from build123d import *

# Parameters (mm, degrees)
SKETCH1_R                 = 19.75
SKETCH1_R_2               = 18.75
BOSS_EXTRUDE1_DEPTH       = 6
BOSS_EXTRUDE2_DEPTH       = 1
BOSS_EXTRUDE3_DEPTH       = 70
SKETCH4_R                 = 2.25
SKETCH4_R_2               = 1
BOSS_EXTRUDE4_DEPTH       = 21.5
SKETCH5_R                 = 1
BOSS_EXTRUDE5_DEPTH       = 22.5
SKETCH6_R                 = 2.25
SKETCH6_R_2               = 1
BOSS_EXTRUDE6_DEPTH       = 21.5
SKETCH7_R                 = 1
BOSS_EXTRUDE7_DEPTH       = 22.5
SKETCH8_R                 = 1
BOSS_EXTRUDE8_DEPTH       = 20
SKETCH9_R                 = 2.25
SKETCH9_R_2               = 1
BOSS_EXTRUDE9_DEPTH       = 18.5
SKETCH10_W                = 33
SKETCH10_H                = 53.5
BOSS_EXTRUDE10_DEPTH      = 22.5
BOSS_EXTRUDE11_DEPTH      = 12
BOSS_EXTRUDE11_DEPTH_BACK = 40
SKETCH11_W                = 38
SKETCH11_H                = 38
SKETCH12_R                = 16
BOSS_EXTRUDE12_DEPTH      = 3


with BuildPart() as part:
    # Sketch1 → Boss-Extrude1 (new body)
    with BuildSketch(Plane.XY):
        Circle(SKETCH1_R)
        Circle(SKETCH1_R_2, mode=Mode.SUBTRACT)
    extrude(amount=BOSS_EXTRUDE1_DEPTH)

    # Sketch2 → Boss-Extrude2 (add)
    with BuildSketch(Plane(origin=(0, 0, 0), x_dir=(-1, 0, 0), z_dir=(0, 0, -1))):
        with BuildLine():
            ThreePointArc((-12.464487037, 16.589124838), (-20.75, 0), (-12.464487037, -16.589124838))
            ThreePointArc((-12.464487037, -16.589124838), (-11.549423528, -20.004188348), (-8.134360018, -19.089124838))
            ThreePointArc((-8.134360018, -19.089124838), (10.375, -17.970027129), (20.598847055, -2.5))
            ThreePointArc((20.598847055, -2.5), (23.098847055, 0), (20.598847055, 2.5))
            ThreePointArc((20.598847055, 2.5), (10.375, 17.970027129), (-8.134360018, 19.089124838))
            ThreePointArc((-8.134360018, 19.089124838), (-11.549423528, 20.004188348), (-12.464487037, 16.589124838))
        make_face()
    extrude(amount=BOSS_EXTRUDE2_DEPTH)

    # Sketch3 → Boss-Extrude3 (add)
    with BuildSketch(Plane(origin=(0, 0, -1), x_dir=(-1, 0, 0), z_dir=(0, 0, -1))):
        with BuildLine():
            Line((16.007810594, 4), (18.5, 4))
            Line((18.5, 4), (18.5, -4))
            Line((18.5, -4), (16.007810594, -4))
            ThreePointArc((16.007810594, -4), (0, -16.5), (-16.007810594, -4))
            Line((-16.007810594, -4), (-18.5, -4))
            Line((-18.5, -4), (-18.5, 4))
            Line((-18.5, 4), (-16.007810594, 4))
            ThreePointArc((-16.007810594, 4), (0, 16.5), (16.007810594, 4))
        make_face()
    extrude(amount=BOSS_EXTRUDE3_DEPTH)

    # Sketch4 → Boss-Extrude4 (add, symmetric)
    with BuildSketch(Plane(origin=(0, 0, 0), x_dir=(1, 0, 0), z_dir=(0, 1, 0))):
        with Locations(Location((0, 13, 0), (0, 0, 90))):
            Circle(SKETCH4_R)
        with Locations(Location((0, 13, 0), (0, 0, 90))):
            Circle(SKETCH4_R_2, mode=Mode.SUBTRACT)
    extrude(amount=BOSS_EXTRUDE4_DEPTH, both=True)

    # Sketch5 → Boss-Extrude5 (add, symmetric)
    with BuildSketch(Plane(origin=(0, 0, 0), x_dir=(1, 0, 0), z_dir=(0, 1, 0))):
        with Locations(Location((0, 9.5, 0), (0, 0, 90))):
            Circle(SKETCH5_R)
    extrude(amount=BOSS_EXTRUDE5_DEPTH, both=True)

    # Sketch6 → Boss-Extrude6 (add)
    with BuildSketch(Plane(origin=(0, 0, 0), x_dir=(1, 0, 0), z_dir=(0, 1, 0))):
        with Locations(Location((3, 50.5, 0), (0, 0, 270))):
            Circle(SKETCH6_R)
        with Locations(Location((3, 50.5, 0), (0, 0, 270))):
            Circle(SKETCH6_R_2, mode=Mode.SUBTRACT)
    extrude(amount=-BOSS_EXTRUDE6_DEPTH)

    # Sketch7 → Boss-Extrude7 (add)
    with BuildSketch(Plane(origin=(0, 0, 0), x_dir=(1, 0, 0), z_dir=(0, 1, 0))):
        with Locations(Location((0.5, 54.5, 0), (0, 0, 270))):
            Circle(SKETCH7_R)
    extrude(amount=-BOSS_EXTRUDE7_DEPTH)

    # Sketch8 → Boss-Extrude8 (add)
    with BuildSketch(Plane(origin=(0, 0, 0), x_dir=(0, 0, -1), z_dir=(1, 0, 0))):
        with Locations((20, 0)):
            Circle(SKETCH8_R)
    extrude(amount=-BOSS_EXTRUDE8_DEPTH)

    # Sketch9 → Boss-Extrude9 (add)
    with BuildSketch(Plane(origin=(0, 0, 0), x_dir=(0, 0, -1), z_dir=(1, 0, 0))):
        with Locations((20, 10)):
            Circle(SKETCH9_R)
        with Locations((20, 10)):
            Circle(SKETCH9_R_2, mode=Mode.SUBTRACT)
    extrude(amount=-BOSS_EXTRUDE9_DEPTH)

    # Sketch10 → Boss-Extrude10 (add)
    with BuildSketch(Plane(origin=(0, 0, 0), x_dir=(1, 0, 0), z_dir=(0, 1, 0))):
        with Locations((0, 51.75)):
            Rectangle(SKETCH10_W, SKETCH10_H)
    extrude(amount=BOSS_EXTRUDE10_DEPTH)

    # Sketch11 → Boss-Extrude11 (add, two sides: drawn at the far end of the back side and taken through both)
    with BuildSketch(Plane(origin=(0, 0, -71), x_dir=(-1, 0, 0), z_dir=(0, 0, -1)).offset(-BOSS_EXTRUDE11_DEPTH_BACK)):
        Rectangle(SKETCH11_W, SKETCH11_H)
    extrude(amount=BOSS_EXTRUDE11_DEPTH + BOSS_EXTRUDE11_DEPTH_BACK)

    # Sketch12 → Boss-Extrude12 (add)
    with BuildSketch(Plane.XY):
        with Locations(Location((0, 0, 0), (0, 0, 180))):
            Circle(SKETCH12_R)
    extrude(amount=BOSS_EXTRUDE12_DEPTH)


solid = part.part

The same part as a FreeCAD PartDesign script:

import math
import FreeCAD as App
import Part
import Sketcher

V = App.Vector
Q = App.Units.Quantity


def add_polygon(sketch, points):
    """Adds a closed chain of lines whose ends are joined by coincident constraints."""
    first, n = sketch.GeometryCount, len(points)
    for a, b in zip(points, points[1:] + points[:1]):
        sketch.addGeometry(Part.LineSegment(App.Vector(*a, 0), App.Vector(*b, 0)), False)
    for i in range(n):
        sketch.addConstraint(Sketcher.Constraint("Coincident", first + i, 2, first + (i + 1) % n, 1))

doc = App.newDocument("Part")
body = doc.addObject("PartDesign::Body", "Body")

# Sketch on XY plane
sketch1 = doc.addObject("Sketcher::SketchObject", "Sketch")
body.addObject(sketch1)
sketch1.AttachmentSupport = (doc.XY_Plane, [""])
sketch1.MapMode = "FlatFace"
sketch1.addGeometry([
    Part.Circle(V(0, 0, 0), V(0, 0, 1), 19.75),
    Part.Circle(V(0, 0, 0), V(0, 0, 1), 18.75),
], False)
sketch1.addConstraint([
    Sketcher.Constraint("Coincident", 0, 3, -1, 1),
    Sketcher.Constraint("Coincident", 1, 3, -1, 1),
    Sketcher.Constraint("Diameter", 0, Q("39.5 mm")),
    Sketcher.Constraint("Diameter", 1, Q("37.5 mm")),
])
pad1 = doc.addObject("PartDesign::Pad", "Pad")
body.addObject(pad1)
pad1.Profile = sketch1
pad1.Length = 6

# Sketch on XY plane
sketch2 = doc.addObject("Sketcher::SketchObject", "Sketch001")
body.addObject(sketch2)
sketch2.AttachmentSupport = (doc.XY_Plane, [""])
sketch2.MapMode = "FlatFace"
sketch2.addGeometry([
    Part.ArcOfCircle(Part.Circle(V(0, 0, 0), V(0, 0, 1), 20.75), math.radians(-53.080083), math.radians(53.080083)),  # 0
    Part.ArcOfCircle(Part.Circle(V(10.299424, -17.839125, 0), V(0, 0, 1), 2.5), math.radians(-150), math.radians(30)),  # 1
    Part.ArcOfCircle(Part.Circle(V(0, 0, 0), V(0, 0, 1), 20.75), math.radians(-173.080083), math.radians(-66.919917)),  # 2
    Part.ArcOfCircle(Part.Circle(V(-20.598847, 0, 0), V(0, 0, 1), 2.5), math.radians(90), math.radians(270)),  # 3
    Part.ArcOfCircle(Part.Circle(V(0, 0, 0), V(0, 0, 1), 20.75), math.radians(66.919917), math.radians(173.080083)),  # 4
    Part.ArcOfCircle(Part.Circle(V(10.299424, 17.839125, 0), V(0, 0, 1), 2.5), math.radians(-30), math.radians(150)),  # 5
], False)
sketch2.addConstraint([
    Sketcher.Constraint("Coincident", 0, 1, 1, 2),
    Sketcher.Constraint("Coincident", 1, 1, 2, 2),
    Sketcher.Constraint("Coincident", 2, 1, 3, 2),
    Sketcher.Constraint("Coincident", 3, 1, 4, 2),
    Sketcher.Constraint("Coincident", 4, 1, 5, 2),
    Sketcher.Constraint("Coincident", 5, 1, 0, 2),
    Sketcher.Constraint("Coincident", 0, 3, -1, 1),
    Sketcher.Constraint("Coincident", 2, 3, -1, 1),
    Sketcher.Constraint("Coincident", 4, 3, -1, 1),
    Sketcher.Constraint("Equal", 0, 2),
    Sketcher.Constraint("Equal", 1, 3),
    Sketcher.Constraint("Equal", 2, 4),
    Sketcher.Constraint("Equal", 3, 5),
    Sketcher.Constraint("Symmetric", 1, 3, 5, 3, -1),
    Sketcher.Constraint("PointOnObject", 3, 3, -1),
    Sketcher.Constraint("Vertical", 3, 3, 2, 1),
    Sketcher.Constraint("Radius", 1, Q("2.5 mm")),
    Sketcher.Constraint("Radius", 0, Q("20.75 mm")),
    Sketcher.Constraint("DistanceY", 1, 1, 0, 1, Q("2.5 mm")),
    Sketcher.Constraint("DistanceY", 1, 3, 0, 1, Q("1.25 mm")),
])
pad2 = doc.addObject("PartDesign::Pad", "Pad001")
body.addObject(pad2)
pad2.Profile = sketch2
pad2.Length = 1
pad2.Reversed = True

# Sketch on XY plane
sketch3 = doc.addObject("Sketcher::SketchObject", "Sketch002")
body.addObject(sketch3)
sketch3.AttachmentSupport = (doc.XY_Plane, [""])
sketch3.MapMode = "FlatFace"
sketch3.AttachmentOffset = App.Placement(V(0, 0, -1), App.Rotation())
sketch3.addGeometry([
    Part.LineSegment(V(-18.5, 4, 0), V(-16.007811, 4, 0)),  # 0
    Part.ArcOfCircle(Part.Circle(V(0, 0, 0), V(0, 0, 1), 16.5), math.radians(14.029665), math.radians(165.970335)),  # 1
    Part.LineSegment(V(16.007811, 4, 0), V(18.5, 4, 0)),  # 2
    Part.LineSegment(V(18.5, 4, 0), V(18.5, -4, 0)),  # 3
    Part.LineSegment(V(18.5, -4, 0), V(16.007811, -4, 0)),  # 4
    Part.ArcOfCircle(Part.Circle(V(0, 0, 0), V(0, 0, 1), 16.5), math.radians(-165.970335), math.radians(-14.029665)),  # 5
    Part.LineSegment(V(-16.007811, -4, 0), V(-18.5, -4, 0)),  # 6
    Part.LineSegment(V(-18.5, -4, 0), V(-18.5, 4, 0)),  # 7
], False)
sketch3.addConstraint([
    Sketcher.Constraint("Coincident", 0, 2, 1, 2),
    Sketcher.Constraint("Coincident", 1, 1, 2, 1),
    Sketcher.Constraint("Coincident", 2, 2, 3, 1),
    Sketcher.Constraint("Coincident", 3, 2, 4, 1),
    Sketcher.Constraint("Coincident", 4, 2, 5, 2),
    Sketcher.Constraint("Coincident", 5, 1, 6, 1),
    Sketcher.Constraint("Coincident", 6, 2, 7, 1),
    Sketcher.Constraint("Coincident", 7, 2, 0, 1),
    Sketcher.Constraint("Horizontal", 0),
    Sketcher.Constraint("Horizontal", 2),
    Sketcher.Constraint("Vertical", 3),
    Sketcher.Constraint("Horizontal", 4),
    Sketcher.Constraint("Horizontal", 6),
    Sketcher.Constraint("Vertical", 7),
    Sketcher.Constraint("Coincident", 1, 3, -1, 1),
    Sketcher.Constraint("Coincident", 5, 3, -1, 1),
    Sketcher.Constraint("Equal", 1, 5),
    Sketcher.Constraint("Symmetric", 2, 2, 6, 2, -1, 1),
    Sketcher.Constraint("Horizontal", 0, 2, 1, 1),
    Sketcher.Constraint("Horizontal", 4, 2, 5, 1),
    Sketcher.Constraint("Radius", 1, Q("16.5 mm")),
    Sketcher.Constraint("DistanceY", 3, 2, 3, 1, Q("8 mm")),
    Sketcher.Constraint("DistanceX", -1, 1, 2, 2, Q("18.5 mm")),
])
pad3 = doc.addObject("PartDesign::Pad", "Pad002")
body.addObject(pad3)
pad3.Profile = sketch3
pad3.Length = 70
pad3.Reversed = True

# Sketch on XZ plane
sketch4 = doc.addObject("Sketcher::SketchObject", "Sketch003")
body.addObject(sketch4)
sketch4.AttachmentSupport = (doc.XZ_Plane, [""])
sketch4.MapMode = "FlatFace"
sketch4.addGeometry([
    Part.Circle(V(0, -13, 0), V(0, 0, 1), 2.25),
    Part.Circle(V(0, -13, 0), V(0, 0, 1), 1),
], False)
sketch4.addConstraint([
    Sketcher.Constraint("Coincident", 1, 3, 0, 3),
    Sketcher.Constraint("PointOnObject", 0, 3, -2),
    Sketcher.Constraint("Diameter", 1, Q("2 mm")),
    Sketcher.Constraint("Diameter", 0, Q("4.5 mm")),
    Sketcher.Constraint("DistanceY", 0, 3, -1, 1, Q("13 mm")),
])
pad4 = doc.addObject("PartDesign::Pad", "Pad003")
body.addObject(pad4)
pad4.Profile = sketch4
pad4.Length = 43
pad4.Midplane = True

# Sketch on XZ plane
sketch5 = doc.addObject("Sketcher::SketchObject", "Sketch004")
body.addObject(sketch5)
sketch5.AttachmentSupport = (doc.XZ_Plane, [""])
sketch5.MapMode = "FlatFace"
sketch5.addGeometry(Part.Circle(V(0, -9.5, 0), V(0, 0, 1), 1), False)
sketch5.addConstraint([
    Sketcher.Constraint("PointOnObject", 0, 3, -2),
    Sketcher.Constraint("Diameter", 0, Q("2 mm")),
    Sketcher.Constraint("DistanceY", 0, 3, -1, 1, Q("9.5 mm")),
])
pad5 = doc.addObject("PartDesign::Pad", "Pad004")
body.addObject(pad5)
pad5.Profile = sketch5
pad5.Length = 45
pad5.Midplane = True

# Sketch on XZ plane
sketch6 = doc.addObject("Sketcher::SketchObject", "Sketch005")
body.addObject(sketch6)
sketch6.AttachmentSupport = (doc.XZ_Plane, [""])
sketch6.MapMode = "FlatFace"
sketch6.addGeometry([
    Part.Circle(V(3, -50.5, 0), V(0, 0, 1), 2.25),
    Part.Circle(V(3, -50.5, 0), V(0, 0, 1), 1),
], False)
sketch6.addConstraint([
    Sketcher.Constraint("Coincident", 1, 3, 0, 3),
    Sketcher.Constraint("Diameter", 1, Q("2 mm")),
    Sketcher.Constraint("Diameter", 0, Q("4.5 mm")),
    Sketcher.Constraint("DistanceX", -1, 1, 0, 3, Q("3 mm")),
    Sketcher.Constraint("DistanceY", 0, 3, -1, 1, Q("50.5 mm")),
])
pad6 = doc.addObject("PartDesign::Pad", "Pad005")
body.addObject(pad6)
pad6.Profile = sketch6
pad6.Length = 21.5

# Sketch on XZ plane
sketch7 = doc.addObject("Sketcher::SketchObject", "Sketch006")
body.addObject(sketch7)
sketch7.AttachmentSupport = (doc.XZ_Plane, [""])
sketch7.MapMode = "FlatFace"
sketch7.addGeometry(Part.Circle(V(0.5, -54.5, 0), V(0, 0, 1), 1), False)
sketch7.addConstraint([
    Sketcher.Constraint("Diameter", 0, Q("2 mm")),
    Sketcher.Constraint("DistanceX", -1, 1, 0, 3, Q("0.5 mm")),
    Sketcher.Constraint("DistanceY", 0, 3, -1, 1, Q("54.5 mm")),
])
pad7 = doc.addObject("PartDesign::Pad", "Pad006")
body.addObject(pad7)
pad7.Profile = sketch7
pad7.Length = 22.5

# Sketch on YZ plane
sketch8 = doc.addObject("Sketcher::SketchObject", "Sketch007")
body.addObject(sketch8)
sketch8.AttachmentSupport = (doc.YZ_Plane, [""])
sketch8.MapMode = "FlatFace"
sketch8.addGeometry(Part.Circle(V(0, -20, 0), V(0, 0, 1), 1), False)
sketch8.addConstraint([
    Sketcher.Constraint("PointOnObject", 0, 3, -2),
    Sketcher.Constraint("Diameter", 0, Q("2 mm")),
    Sketcher.Constraint("DistanceY", 0, 3, -1, 1, Q("20 mm")),
])
pad8 = doc.addObject("PartDesign::Pad", "Pad007")
body.addObject(pad8)
pad8.Profile = sketch8
pad8.Length = 20
pad8.Reversed = True

# Sketch on YZ plane
sketch9 = doc.addObject("Sketcher::SketchObject", "Sketch008")
body.addObject(sketch9)
sketch9.AttachmentSupport = (doc.YZ_Plane, [""])
sketch9.MapMode = "FlatFace"
sketch9.addGeometry([
    Part.Circle(V(10, -20, 0), V(0, 0, 1), 2.25),
    Part.Circle(V(10, -20, 0), V(0, 0, 1), 1),
], False)
sketch9.addConstraint([
    Sketcher.Constraint("Coincident", 1, 3, 0, 3),
    Sketcher.Constraint("Diameter", 1, Q("2 mm")),
    Sketcher.Constraint("Diameter", 0, Q("4.5 mm")),
    Sketcher.Constraint("DistanceX", -1, 1, 0, 3, Q("10 mm")),
    Sketcher.Constraint("DistanceY", 0, 3, -1, 1, Q("20 mm")),
])
pad9 = doc.addObject("PartDesign::Pad", "Pad008")
body.addObject(pad9)
pad9.Profile = sketch9
pad9.Length = 18.5
pad9.Reversed = True

# Sketch on XZ plane
sketch10 = doc.addObject("Sketcher::SketchObject", "Sketch009")
body.addObject(sketch10)
sketch10.AttachmentSupport = (doc.XZ_Plane, [""])
sketch10.MapMode = "FlatFace"
add_polygon(sketch10, [(-16.5, -78.5), (-16.5, -25), (16.5, -25), (16.5, -78.5)])  # lines 0-3
sketch10.addConstraint([
    Sketcher.Constraint("Vertical", 0),
    Sketcher.Constraint("Horizontal", 1),
    Sketcher.Constraint("Vertical", 2),
    Sketcher.Constraint("Horizontal", 3),
    Sketcher.Constraint("DistanceX", 1, 1, 1, 2, Q("33 mm")),
    Sketcher.Constraint("DistanceY", 0, 1, 0, 2, Q("53.5 mm")),
    Sketcher.Constraint("DistanceY", 0, 2, -1, 1, Q("25 mm")),
    Sketcher.Constraint("DistanceX", 0, 2, -1, 1, Q("16.5 mm")),
])
pad10 = doc.addObject("PartDesign::Pad", "Pad009")
body.addObject(pad10)
pad10.Profile = sketch10
pad10.Length = 22.5
pad10.Reversed = True

# Sketch on XY plane
sketch11 = doc.addObject("Sketcher::SketchObject", "Sketch010")
body.addObject(sketch11)
sketch11.AttachmentSupport = (doc.XY_Plane, [""])
sketch11.MapMode = "FlatFace"
sketch11.AttachmentOffset = App.Placement(V(0, 0, -71), App.Rotation())
add_polygon(sketch11, [(19, 19), (19, -19), (-19, -19), (-19, 19)])  # lines 0-3
sketch11.addConstraint([
    Sketcher.Constraint("Vertical", 0),
    Sketcher.Constraint("Horizontal", 1),
    Sketcher.Constraint("Vertical", 2),
    Sketcher.Constraint("Horizontal", 3),
    Sketcher.Constraint("Symmetric", 0, 2, 2, 2, -1, 1),
    Sketcher.Constraint("Equal", 3, 0),
    Sketcher.Constraint("DistanceX", 1, 2, 1, 1, Q("38 mm")),
])
pad11 = doc.addObject("PartDesign::Pad", "Pad010")
body.addObject(pad11)
pad11.Profile = sketch11
pad11.Type = "TwoLengths"
pad11.Length = 12
pad11.Length2 = 40
pad11.Reversed = True

# Sketch on XY plane
sketch12 = doc.addObject("Sketcher::SketchObject", "Sketch011")
body.addObject(sketch12)
sketch12.AttachmentSupport = (doc.XY_Plane, [""])
sketch12.MapMode = "FlatFace"
sketch12.addGeometry(Part.Circle(V(0, 0, 0), V(0, 0, 1), 16), False)
sketch12.addConstraint([
    Sketcher.Constraint("Coincident", 0, 3, -1, 1),
    Sketcher.Constraint("Diameter", 0, Q("32 mm")),
])
pad12 = doc.addObject("PartDesign::Pad", "Pad011")
body.addObject(pad12)
pad12.Profile = sketch12
pad12.Length = 3

doc.recompute()
